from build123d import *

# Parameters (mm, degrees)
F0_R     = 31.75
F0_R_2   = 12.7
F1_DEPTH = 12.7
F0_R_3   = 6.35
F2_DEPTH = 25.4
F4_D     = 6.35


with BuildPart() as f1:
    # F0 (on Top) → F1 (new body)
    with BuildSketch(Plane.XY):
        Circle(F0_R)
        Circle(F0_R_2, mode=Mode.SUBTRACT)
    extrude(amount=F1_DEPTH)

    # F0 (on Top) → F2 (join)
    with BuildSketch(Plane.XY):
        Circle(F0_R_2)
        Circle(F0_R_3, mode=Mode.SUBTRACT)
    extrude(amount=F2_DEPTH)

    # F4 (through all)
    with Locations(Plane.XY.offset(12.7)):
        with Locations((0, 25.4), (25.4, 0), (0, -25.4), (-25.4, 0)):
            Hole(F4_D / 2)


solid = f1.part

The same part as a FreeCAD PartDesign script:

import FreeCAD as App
import Part
import Sketcher
Q = App.Units.Quantity

doc = App.newDocument("Part")
body = doc.addObject("PartDesign::Body", "Body")

# Sketch on XY plane
sketch1 = body.newObject("Sketcher::SketchObject", "Sketch")
sketch1.AttachmentSupport = (doc.getObject("XY_Plane"), [""])
sketch1.MapMode = "FlatFace"
sketch1.addGeometry([
    Part.Circle(App.Vector(0, 0, 0), App.Vector(0, 0, 1), 32),
    Part.Circle(App.Vector(0, 0, 0), App.Vector(0, 0, 1), 13),
], False)
sketch1.addConstraint([
    Sketcher.Constraint("Coincident", 0, 3, -1, 1),
    Sketcher.Constraint("Coincident", 1, 3, -1, 1),
    Sketcher.Constraint("Diameter", 1, Q("1 in")),
    Sketcher.Constraint("Diameter", 0, Q("2.5 in")),
])
pad1 = body.newObject("PartDesign::Pad", "Pad")
pad1.Profile = sketch1
pad1.Length = Q("0.5 in")

# Sketch on XY plane
sketch2 = body.newObject("Sketcher::SketchObject", "Sketch001")
sketch2.AttachmentSupport = (doc.getObject("XY_Plane"), [""])
sketch2.MapMode = "FlatFace"
sketch2.addGeometry([
    Part.Circle(App.Vector(0, 0, 0), App.Vector(0, 0, 1), 13),
    Part.Circle(App.Vector(0, 0, 0), App.Vector(0, 0, 1), 6),
], False)
sketch2.addConstraint([
    Sketcher.Constraint("Coincident", 0, 3, -1, 1),
    Sketcher.Constraint("Coincident", 1, 3, -1, 1),
    Sketcher.Constraint("Diameter", 0, Q("1 in")),
    Sketcher.Constraint("Diameter", 1, Q("0.5 in")),
])
pad2 = body.newObject("PartDesign::Pad", "Pad001")
pad2.Profile = sketch2
pad2.Length = Q("1 in")

# Sketch on XY plane
sketch3 = body.newObject("Sketcher::SketchObject", "Sketch002")
sketch3.AttachmentSupport = (doc.getObject("XY_Plane"), [""])
sketch3.MapMode = "FlatFace"
sketch3.AttachmentOffset = App.Placement(App.Vector(0, 0, 0.5 * 25.4), App.Rotation())
sketch3.addGeometry([
    Part.Circle(App.Vector(0, 25.4, 0), App.Vector(0, 0, 1), 3.2),
    Part.Circle(App.Vector(25.4, 0, 0), App.Vector(0, 0, 1), 3.2),
    Part.Circle(App.Vector(0, -25.4, 0), App.Vector(0, 0, 1), 3.2),
    Part.Circle(App.Vector(-25.4, 0, 0), App.Vector(0, 0, 1), 3.2),
], False)
sketch3.addConstraint([
    Sketcher.Constraint("Equal", 0, 1),
    Sketcher.Constraint("Equal", 1, 2),
    Sketcher.Constraint("Equal", 2, 3),
    Sketcher.Constraint("Symmetric", 0, 3, 2, 3, -1, 1),
    Sketcher.Constraint("Symmetric", 1, 3, 3, 3, -1, 1),
    Sketcher.Constraint("PointOnObject", 0, 3, -2),
    Sketcher.Constraint("PointOnObject", 1, 3, -1),
    Sketcher.Constraint("Diameter", 0, Q("0.25 in")),
    Sketcher.Constraint("DistanceY", -1, 1, 0, 3, Q("1 in")),
    Sketcher.Constraint("DistanceX", -1, 1, 1, 3, Q("1 in")),
])
doc.recompute()
hole = body.newObject("PartDesign::Hole", "Hole")
hole.Profile = sketch3
hole.ThreadType = "None"
hole.Diameter = Q("0.25 in")
hole.DepthType = "ThroughAll"

doc.recompute()
